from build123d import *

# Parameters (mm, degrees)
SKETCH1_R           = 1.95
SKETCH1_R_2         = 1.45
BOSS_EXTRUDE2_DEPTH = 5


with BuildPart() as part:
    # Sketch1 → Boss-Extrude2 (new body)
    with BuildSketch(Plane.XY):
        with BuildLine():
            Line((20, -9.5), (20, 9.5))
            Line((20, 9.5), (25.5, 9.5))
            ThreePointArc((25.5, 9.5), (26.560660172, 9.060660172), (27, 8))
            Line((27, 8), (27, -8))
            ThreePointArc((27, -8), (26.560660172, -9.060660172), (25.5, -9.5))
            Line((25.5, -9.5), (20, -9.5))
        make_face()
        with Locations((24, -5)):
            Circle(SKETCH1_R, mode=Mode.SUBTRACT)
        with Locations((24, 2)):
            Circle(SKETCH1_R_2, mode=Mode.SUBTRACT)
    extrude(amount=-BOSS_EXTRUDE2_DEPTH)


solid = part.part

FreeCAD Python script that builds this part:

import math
import FreeCAD as App
import Part
import Sketcher

doc = App.newDocument("Part")
body = doc.addObject("PartDesign::Body", "Body")

sketch1 = body.newObject("Sketcher::SketchObject", "Sketch")
sketch1.AttachmentSupport = (doc.getObject("XY_Plane"), [""])
sketch1.MapMode = "FlatFace"
sketch1.addGeometry(Part.LineSegment(App.Vector(20, 9.5, 0), App.Vector(20, -9.5, 0)), False)
sketch1.addGeometry(Part.LineSegment(App.Vector(20, -9.5, 0), App.Vector(25.5, -9.5, 0)), False)
sketch1.addGeometry(Part.ArcOfCircle(Part.Circle(App.Vector(25.5, -8, 0), App.Vector(0, 0, 1), 1.5), math.radians(-90), math.radians(0)), False)
sketch1.addGeometry(Part.LineSegment(App.Vector(27, -8, 0), App.Vector(27, 8, 0)), False)
sketch1.addGeometry(Part.ArcOfCircle(Part.Circle(App.Vector(25.5, 8, 0), App.Vector(0, 0, 1), 1.5), math.radians(0), math.radians(90)), False)
sketch1.addGeometry(Part.LineSegment(App.Vector(25.5, 9.5, 0), App.Vector(20, 9.5, 0)), False)
sketch1.addGeometry(Part.Circle(App.Vector(24, -5, 0), App.Vector(0, 0, 1), 1.9), False)
sketch1.addGeometry(Part.Circle(App.Vector(24, 2, 0), App.Vector(0, 0, 1), 1.4), False)
sketch1.addConstraint(Sketcher.Constraint("Coincident", 0, 2, 1, 1))
sketch1.addConstraint(Sketcher.Constraint("Tangent", 1, 2, 2, 1))
sketch1.addConstraint(Sketcher.Constraint("Tangent", 2, 2, 3, 1))
sketch1.addConstraint(Sketcher.Constraint("Tangent", 3, 2, 4, 1))
sketch1.addConstraint(Sketcher.Constraint("Tangent", 4, 2, 5, 1))
sketch1.addConstraint(Sketcher.Constraint("Coincident", 5, 2, 0, 1))
sketch1.addConstraint(Sketcher.Constraint("Vertical", 0))
sketch1.addConstraint(Sketcher.Constraint("Horizontal", 1))
sketch1.addConstraint(Sketcher.Constraint("Vertical", 3))
sketch1.addConstraint(Sketcher.Constraint("Horizontal", 5))
sketch1.addConstraint(Sketcher.Constraint("Equal", 2, 4))
sketch1.addConstraint(Sketcher.Constraint("Vertical", 6, 3, 7, 3))
sketch1.addConstraint(Sketcher.Constraint("Diameter", 6, 3.9))
sketch1.addConstraint(Sketcher.Constraint("Diameter", 7, 2.9))
sketch1.addConstraint(Sketcher.Constraint("Radius", 2, 1.5))
sketch1.addConstraint(Sketcher.Constraint("DistanceY", 0, 2, 0, 1, 19.0))
sketch1.addConstraint(Sketcher.Constraint("DistanceX", 1, 1, 1, 2, 5.5))
sketch1.addConstraint(Sketcher.Constraint("DistanceY", 2, 3, -1, 1, 8.0))
sketch1.addConstraint(Sketcher.Constraint("DistanceX", -1, 1, 6, 3, 24.0))
sketch1.addConstraint(Sketcher.Constraint("DistanceY", 6, 3, -1, 1, 5.0))
sketch1.addConstraint(Sketcher.Constraint("DistanceY", -1, 1, 7, 3, 2.0))
sketch1.addConstraint(Sketcher.Constraint("DistanceX", -1, 1, 0, 2, 20.0))
pad1 = body.newObject("PartDesign::Pad", "Pad")
pad1.Profile = sketch1
pad1.Length = 5
pad1.Reversed = True

doc.recompute()
